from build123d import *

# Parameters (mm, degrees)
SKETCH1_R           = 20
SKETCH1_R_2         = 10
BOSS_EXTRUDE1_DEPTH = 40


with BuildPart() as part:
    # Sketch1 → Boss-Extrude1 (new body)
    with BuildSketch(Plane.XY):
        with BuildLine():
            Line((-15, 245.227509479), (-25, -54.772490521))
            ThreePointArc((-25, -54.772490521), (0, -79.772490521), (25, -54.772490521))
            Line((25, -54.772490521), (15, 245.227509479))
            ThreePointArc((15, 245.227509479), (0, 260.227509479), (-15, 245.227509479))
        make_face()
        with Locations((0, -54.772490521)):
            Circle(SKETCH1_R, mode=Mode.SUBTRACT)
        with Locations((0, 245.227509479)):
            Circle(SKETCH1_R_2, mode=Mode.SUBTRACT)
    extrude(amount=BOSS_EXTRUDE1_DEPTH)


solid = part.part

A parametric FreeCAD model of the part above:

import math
import FreeCAD as App
import Part
import Sketcher

doc = App.newDocument("Part")
body = doc.addObject("PartDesign::Body", "Body")

sketch1 = body.newObject("Sketcher::SketchObject", "Sketch")
sketch1.AttachmentSupport = (doc.getObject("XY_Plane"), [""])
sketch1.MapMode = "FlatFace"
sketch1.addGeometry([
    Part.LineSegment(App.Vector(-15, 245, 0), App.Vector(-25, -55, 0)),
    Part.ArcOfCircle(Part.Circle(App.Vector(0, -55, 0), App.Vector(0, 0, 1), 25), math.radians(180), math.radians(360)),
    Part.LineSegment(App.Vector(25, -55, 0), App.Vector(15, 245, 0)),
    Part.ArcOfCircle(Part.Circle(App.Vector(0, 245, 0), App.Vector(0, 0, 1), 15), math.radians(0), math.radians(180)),
    Part.Circle(App.Vector(0, -55, 0), App.Vector(0, 0, 1), 20),
    Part.Circle(App.Vector(0, 245, 0), App.Vector(0, 0, 1), 10),
], False)
sketch1.addConstraint([
    Sketcher.Constraint("Coincident", 0, 2, 1, 1),
    Sketcher.Constraint("Coincident", 1, 2, 2, 1),
    Sketcher.Constraint("Coincident", 2, 2, 3, 1),
    Sketcher.Constraint("Coincident", 3, 2, 0, 1),
    Sketcher.Constraint("Coincident", 4, 3, 1, 3),
    Sketcher.Constraint("Coincident", 5, 3, 3, 3),
    Sketcher.Constraint("Symmetric", 0, 2, 1, 2, -2),
    Sketcher.Constraint("Symmetric", 2, 2, 3, 2, -2),
    Sketcher.Constraint("Horizontal", 4, 3, 0, 2),
    Sketcher.Constraint("Horizontal", 5, 3, 2, 2),
    Sketcher.Constraint("Diameter", 4, 40.0),
    Sketcher.Constraint("Diameter", 5, 20.0),
    Sketcher.Constraint("Radius", 1, 25.0),
    Sketcher.Constraint("Radius", 3, 15.0),
    Sketcher.Constraint("DistanceY", 1, 3, 3, 3, 300.0),
    Sketcher.Constraint("DistanceY", 1, 3, -1, 1, 54.772491),
])
pad1 = body.newObject("PartDesign::Pad", "Pad")
pad1.Profile = sketch1
pad1.Length = 40

doc.recompute()
